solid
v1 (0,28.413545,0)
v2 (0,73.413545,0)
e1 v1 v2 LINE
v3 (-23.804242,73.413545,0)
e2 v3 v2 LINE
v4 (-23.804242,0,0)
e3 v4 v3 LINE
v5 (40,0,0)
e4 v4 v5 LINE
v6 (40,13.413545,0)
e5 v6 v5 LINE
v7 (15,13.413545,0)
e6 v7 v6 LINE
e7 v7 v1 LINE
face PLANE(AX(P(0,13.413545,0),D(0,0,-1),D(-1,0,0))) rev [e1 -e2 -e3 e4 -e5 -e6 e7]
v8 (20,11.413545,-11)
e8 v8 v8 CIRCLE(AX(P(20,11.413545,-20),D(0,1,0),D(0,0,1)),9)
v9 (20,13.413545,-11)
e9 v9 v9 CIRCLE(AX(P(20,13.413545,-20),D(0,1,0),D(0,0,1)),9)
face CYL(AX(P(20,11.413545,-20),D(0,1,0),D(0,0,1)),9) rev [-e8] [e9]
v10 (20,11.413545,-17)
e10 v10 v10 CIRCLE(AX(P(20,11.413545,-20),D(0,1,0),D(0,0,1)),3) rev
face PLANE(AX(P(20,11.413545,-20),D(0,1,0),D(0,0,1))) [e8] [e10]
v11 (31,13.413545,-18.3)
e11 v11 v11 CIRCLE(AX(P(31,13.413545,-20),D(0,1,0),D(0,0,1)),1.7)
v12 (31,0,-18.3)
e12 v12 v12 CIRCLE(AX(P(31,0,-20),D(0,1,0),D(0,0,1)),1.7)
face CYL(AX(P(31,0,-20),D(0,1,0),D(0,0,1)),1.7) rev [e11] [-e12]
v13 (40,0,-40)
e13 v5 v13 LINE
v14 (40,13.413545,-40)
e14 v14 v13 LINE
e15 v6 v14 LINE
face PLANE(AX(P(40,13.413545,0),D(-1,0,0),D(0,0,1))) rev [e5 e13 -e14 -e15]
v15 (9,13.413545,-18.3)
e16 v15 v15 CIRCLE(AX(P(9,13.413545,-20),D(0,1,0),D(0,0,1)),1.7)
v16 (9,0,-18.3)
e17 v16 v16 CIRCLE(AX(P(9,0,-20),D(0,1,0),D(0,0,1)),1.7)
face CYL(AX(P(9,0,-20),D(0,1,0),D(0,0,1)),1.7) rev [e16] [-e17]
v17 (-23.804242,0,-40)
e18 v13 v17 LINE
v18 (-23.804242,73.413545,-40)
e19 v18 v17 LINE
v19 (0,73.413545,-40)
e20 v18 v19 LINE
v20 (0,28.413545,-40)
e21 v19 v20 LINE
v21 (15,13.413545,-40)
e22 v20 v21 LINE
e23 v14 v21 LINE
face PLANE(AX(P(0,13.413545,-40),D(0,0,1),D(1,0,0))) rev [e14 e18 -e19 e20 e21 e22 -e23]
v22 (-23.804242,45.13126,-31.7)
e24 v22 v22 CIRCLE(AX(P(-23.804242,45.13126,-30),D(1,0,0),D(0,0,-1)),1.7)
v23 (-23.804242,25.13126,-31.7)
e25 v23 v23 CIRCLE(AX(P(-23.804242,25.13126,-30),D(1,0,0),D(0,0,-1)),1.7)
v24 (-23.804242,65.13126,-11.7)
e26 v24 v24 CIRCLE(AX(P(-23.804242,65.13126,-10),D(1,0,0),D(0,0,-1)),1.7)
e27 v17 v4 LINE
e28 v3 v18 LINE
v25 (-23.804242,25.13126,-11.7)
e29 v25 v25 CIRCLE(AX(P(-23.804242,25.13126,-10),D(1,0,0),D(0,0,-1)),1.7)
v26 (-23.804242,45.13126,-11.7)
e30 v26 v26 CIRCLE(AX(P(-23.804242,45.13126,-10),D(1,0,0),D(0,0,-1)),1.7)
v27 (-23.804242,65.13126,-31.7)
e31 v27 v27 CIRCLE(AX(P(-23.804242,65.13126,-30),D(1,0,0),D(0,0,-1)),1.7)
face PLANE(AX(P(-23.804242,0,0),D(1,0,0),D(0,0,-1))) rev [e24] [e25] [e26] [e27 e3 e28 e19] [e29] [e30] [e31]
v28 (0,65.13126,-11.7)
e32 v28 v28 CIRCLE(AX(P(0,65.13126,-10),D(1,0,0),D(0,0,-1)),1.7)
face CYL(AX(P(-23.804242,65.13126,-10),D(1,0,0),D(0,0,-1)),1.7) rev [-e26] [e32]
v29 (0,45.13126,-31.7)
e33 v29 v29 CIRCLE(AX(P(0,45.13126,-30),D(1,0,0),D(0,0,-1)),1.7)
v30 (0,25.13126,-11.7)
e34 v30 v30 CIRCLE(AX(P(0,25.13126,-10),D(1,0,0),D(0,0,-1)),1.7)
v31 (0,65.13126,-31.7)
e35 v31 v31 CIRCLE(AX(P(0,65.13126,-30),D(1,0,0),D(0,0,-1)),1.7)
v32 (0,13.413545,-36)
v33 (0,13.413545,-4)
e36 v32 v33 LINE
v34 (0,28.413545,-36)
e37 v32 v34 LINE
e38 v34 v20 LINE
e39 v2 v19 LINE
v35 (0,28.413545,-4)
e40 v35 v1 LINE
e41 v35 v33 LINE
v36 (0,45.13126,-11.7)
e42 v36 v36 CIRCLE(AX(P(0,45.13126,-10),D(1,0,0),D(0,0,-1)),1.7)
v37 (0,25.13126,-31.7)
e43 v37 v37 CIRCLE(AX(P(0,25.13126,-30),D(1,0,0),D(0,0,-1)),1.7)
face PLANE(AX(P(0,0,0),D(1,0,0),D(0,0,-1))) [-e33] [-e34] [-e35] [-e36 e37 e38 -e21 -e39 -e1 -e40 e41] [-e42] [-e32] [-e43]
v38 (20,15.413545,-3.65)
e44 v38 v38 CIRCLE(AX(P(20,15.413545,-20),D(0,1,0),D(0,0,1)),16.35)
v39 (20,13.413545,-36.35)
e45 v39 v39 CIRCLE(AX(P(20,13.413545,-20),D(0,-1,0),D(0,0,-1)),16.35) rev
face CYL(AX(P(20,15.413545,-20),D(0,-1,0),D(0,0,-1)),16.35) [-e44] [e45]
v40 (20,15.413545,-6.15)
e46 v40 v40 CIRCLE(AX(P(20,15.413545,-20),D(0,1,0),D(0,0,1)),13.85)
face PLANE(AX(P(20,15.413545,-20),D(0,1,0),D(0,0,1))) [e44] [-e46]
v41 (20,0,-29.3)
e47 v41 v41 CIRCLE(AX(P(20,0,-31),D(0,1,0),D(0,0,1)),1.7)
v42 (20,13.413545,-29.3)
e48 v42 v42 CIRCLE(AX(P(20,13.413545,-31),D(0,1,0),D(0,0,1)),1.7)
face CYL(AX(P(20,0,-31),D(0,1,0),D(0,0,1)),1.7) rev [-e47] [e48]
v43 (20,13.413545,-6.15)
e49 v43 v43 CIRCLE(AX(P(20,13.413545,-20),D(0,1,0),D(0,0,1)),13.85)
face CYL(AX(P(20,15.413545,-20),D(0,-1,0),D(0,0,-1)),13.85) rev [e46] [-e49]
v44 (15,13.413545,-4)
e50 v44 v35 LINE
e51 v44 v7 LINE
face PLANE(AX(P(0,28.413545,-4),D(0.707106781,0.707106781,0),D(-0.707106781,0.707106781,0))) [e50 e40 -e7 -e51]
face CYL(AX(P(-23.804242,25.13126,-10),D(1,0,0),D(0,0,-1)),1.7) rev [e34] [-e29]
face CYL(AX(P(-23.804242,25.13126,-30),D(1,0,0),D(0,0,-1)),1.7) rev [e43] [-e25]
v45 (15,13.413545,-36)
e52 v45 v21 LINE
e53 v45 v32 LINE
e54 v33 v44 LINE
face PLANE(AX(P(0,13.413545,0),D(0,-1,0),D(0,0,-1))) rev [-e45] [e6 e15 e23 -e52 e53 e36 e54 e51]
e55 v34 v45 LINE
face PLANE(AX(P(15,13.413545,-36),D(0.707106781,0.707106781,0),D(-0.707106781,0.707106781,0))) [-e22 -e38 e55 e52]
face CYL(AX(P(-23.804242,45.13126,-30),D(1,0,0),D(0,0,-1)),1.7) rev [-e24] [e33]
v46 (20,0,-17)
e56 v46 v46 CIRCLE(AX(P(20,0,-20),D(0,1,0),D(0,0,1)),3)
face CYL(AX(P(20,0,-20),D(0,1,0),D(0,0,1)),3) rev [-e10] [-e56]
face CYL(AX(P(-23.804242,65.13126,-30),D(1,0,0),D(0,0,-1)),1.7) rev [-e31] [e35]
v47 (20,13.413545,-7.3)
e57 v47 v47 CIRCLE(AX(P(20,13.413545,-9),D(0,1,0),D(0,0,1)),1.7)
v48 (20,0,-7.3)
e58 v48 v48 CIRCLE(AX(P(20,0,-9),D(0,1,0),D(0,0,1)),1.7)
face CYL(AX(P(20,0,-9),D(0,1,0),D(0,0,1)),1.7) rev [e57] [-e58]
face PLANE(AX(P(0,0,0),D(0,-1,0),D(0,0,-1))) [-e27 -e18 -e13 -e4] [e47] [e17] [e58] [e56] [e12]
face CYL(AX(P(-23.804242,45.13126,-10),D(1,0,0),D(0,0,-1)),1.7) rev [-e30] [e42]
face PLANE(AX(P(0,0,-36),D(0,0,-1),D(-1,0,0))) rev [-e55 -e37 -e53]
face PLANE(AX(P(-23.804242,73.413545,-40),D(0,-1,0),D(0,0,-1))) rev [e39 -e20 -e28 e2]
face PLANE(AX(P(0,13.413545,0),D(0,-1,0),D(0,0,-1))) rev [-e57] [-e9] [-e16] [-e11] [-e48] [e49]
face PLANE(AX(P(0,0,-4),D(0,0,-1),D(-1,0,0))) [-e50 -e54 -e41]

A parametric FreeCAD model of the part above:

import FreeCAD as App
import Part
import Sketcher
from FreeCAD import Vector
Q = App.Units.Quantity


def add_polygon(sketch, points):
    """Adds a closed chain of lines whose ends are joined by coincident constraints."""
    first, n = sketch.GeometryCount, len(points)
    for a, b in zip(points, points[1:] + points[:1]):
        sketch.addGeometry(Part.LineSegment(App.Vector(*a, 0), App.Vector(*b, 0)), False)
    for i in range(n):
        sketch.addConstraint(Sketcher.Constraint("Coincident", first + i, 2, first + (i + 1) % n, 1))

doc = App.newDocument("Part")
body = doc.addObject("PartDesign::Body", "Body")

# Sketch on XZ plane
sketch1 = body.newObject("Sketcher::SketchObject", "Sketch")
sketch1.AttachmentSupport = (doc.getObject("XZ_Plane"), [""])
sketch1.MapMode = "FlatFace"
add_polygon(sketch1, [(0, -40), (0, 0), (40, 0), (40, -40)])  # lines 0-3
sketch1.addConstraint([
    Sketcher.Constraint("Vertical", 0),
    Sketcher.Constraint("Horizontal", 1),
    Sketcher.Constraint("Vertical", 2),
    Sketcher.Constraint("Horizontal", 3),
    Sketcher.Constraint("Coincident", 0, 2, -1, 1),
    Sketcher.Constraint("Equal", 3, 0),
    Sketcher.Constraint("DistanceX", 1, 1, 1, 2, Q("40 mm")),
])
pad1 = body.newObject("PartDesign::Pad", "Pad")
pad1.Profile = sketch1
pad1.Length = 13.413545
pad1.Reversed = True

# Sketch on XZ plane
sketch2 = body.newObject("Sketcher::SketchObject", "Sketch001")
sketch2.AttachmentSupport = (doc.getObject("XZ_Plane"), [""])
sketch2.MapMode = "FlatFace"
sketch2.AttachmentOffset = App.Placement(Vector(0, 0, -13.413545), App.Rotation())
sketch2.addGeometry(Part.Circle(Vector(20, -20, 0), Vector(0, 0, 1), 3), False)
sketch2.addConstraint([
    Sketcher.Constraint("Diameter", 0, Q("6 mm")),
    Sketcher.Constraint("DistanceX", -1, 1, 0, 3, Q("20 mm")),
    Sketcher.Constraint("DistanceY", 0, 3, -1, 1, Q("20 mm")),
])
pocket1 = body.newObject("PartDesign::Pocket", "Pocket")
pocket1.Profile = sketch2
pocket1.Type = "ThroughAll"
pocket1.Reversed = True

# Sketch on YZ plane
sketch3 = body.newObject("Sketcher::SketchObject", "Sketch002")
sketch3.AttachmentSupport = (doc.getObject("YZ_Plane"), [""])
sketch3.MapMode = "FlatFace"
add_polygon(sketch3, [(73.413545, -40), (0, -40), (0, 0), (73.413545, 0)])  # lines 0-3
sketch3.addConstraint([
    Sketcher.Constraint("Horizontal", 0),
    Sketcher.Constraint("Vertical", 1),
    Sketcher.Constraint("Horizontal", 2),
    Sketcher.Constraint("Vertical", 3),
    Sketcher.Constraint("Coincident", 1, 2, -1, 1),
    Sketcher.Constraint("DistanceY", 1, 1, 1, 2, Q("40 mm")),
    Sketcher.Constraint("DistanceX", 0, 2, 0, 1, Q("73.413545 mm")),
])
pad2 = body.newObject("PartDesign::Pad", "Pad001")
pad2.Profile = sketch3
pad2.Length = 23.804242
pad2.Reversed = True

# Sketch on YZ plane
sketch4 = body.newObject("Sketcher::SketchObject", "Sketch003")
sketch4.AttachmentSupport = (doc.getObject("YZ_Plane"), [""])
sketch4.MapMode = "FlatFace"
sketch4.addGeometry([
    Part.Circle(Vector(65.13126, -10, 0), Vector(0, 0, 1), 1.7),  # 0
    Part.Circle(Vector(65.13126, -30, 0), Vector(0, 0, 1), 1.7),  # 1
    Part.Circle(Vector(45.13126, -10, 0), Vector(0, 0, 1), 1.7),  # 2
    Part.Circle(Vector(45.13126, -30, 0), Vector(0, 0, 1), 1.7),  # 3
    Part.Circle(Vector(25.13126, -10, 0), Vector(0, 0, 1), 1.7),  # 4
    Part.Circle(Vector(25.13126, -30, 0), Vector(0, 0, 1), 1.7),  # 5
], False)
sketch4.addConstraint([
    Sketcher.Constraint("Equal", 0, 1),
    Sketcher.Constraint("Equal", 1, 2),
    Sketcher.Constraint("Equal", 2, 3),
    Sketcher.Constraint("Equal", 3, 4),
    Sketcher.Constraint("Equal", 4, 5),
    Sketcher.Constraint("Horizontal", 0, 3, 2, 3),
    Sketcher.Constraint("Horizontal", 1, 3, 3, 3),
    Sketcher.Constraint("Horizontal", 2, 3, 4, 3),
    Sketcher.Constraint("Horizontal", 3, 3, 5, 3),
    Sketcher.Constraint("Vertical", 0, 3, 1, 3),
    Sketcher.Constraint("Vertical", 2, 3, 3, 3),
    Sketcher.Constraint("Vertical", 4, 3, 5, 3),
    Sketcher.Constraint("Diameter", 0, Q("3.4 mm")),
    Sketcher.Constraint("DistanceY", 0, 3, -1, 1, Q("10 mm")),
    Sketcher.Constraint("DistanceY", 1, 3, -1, 1, Q("30 mm")),
    Sketcher.Constraint("DistanceX", 2, 3, 0, 3, Q("20 mm")),
    Sketcher.Constraint("DistanceX", 4, 3, 2, 3, Q("20 mm")),
    Sketcher.Constraint("DistanceX", -1, 1, 0, 3, Q("65.13126 mm")),
])
pocket2 = body.newObject("PartDesign::Pocket", "Pocket001")
pocket2.Profile = sketch4
pocket2.Type = "ThroughAll"

# Sketch on XZ plane
sketch5 = body.newObject("Sketcher::SketchObject", "Sketch004")
sketch5.AttachmentSupport = (doc.getObject("XZ_Plane"), [""])
sketch5.MapMode = "FlatFace"
sketch5.AttachmentOffset = App.Placement(Vector(0, 0, -13.413545), App.Rotation())
sketch5.addGeometry([
    Part.Circle(Vector(20, -31, 0), Vector(0, 0, 1), 1.7),
    Part.Circle(Vector(31, -20, 0), Vector(0, 0, 1), 1.7),
    Part.Circle(Vector(20, -9, 0), Vector(0, 0, 1), 1.7),
    Part.Circle(Vector(9, -20, 0), Vector(0, 0, 1), 1.7),
], False)
sketch5.addConstraint([
    Sketcher.Constraint("Equal", 0, 1),
    Sketcher.Constraint("Equal", 1, 2),
    Sketcher.Constraint("Equal", 2, 3),
    Sketcher.Constraint("Horizontal", 1, 3, 3, 3),
    Sketcher.Constraint("Vertical", 0, 3, 2, 3),
    Sketcher.Constraint("Diameter", 0, Q("3.4 mm")),
    Sketcher.Constraint("DistanceX", -1, 1, 0, 3, Q("20 mm")),
    Sketcher.Constraint("DistanceY", 0, 3, -1, 1, Q("31 mm")),
    Sketcher.Constraint("DistanceX", -1, 1, 1, 3, Q("31 mm")),
    Sketcher.Constraint("DistanceY", 1, 3, -1, 1, Q("20 mm")),
    Sketcher.Constraint("DistanceY", 2, 3, -1, 1, Q("9 mm")),
    Sketcher.Constraint("DistanceX", -1, 1, 3, 3, Q("9 mm")),
])
pocket3 = body.newObject("PartDesign::Pocket", "Pocket002")
pocket3.Profile = sketch5
pocket3.Type = "ThroughAll"
pocket3.Reversed = True

# Sketch on XZ plane
sketch6 = body.newObject("Sketcher::SketchObject", "Sketch005")
sketch6.AttachmentSupport = (doc.getObject("XZ_Plane"), [""])
sketch6.MapMode = "FlatFace"
sketch6.AttachmentOffset = App.Placement(Vector(0, 0, -13.413545), App.Rotation())
sketch6.addGeometry([
    Part.Circle(Vector(20, -20, 0), Vector(0, 0, 1), 16.35),
    Part.Circle(Vector(20, -20, 0), Vector(0, 0, 1), 13.85),
], False)
sketch6.addConstraint([
    Sketcher.Constraint("Coincident", 1, 3, 0, 3),
    Sketcher.Constraint("Diameter", 0, Q("32.7 mm")),
    Sketcher.Constraint("Diameter", 1, Q("27.7 mm")),
    Sketcher.Constraint("DistanceX", -1, 1, 0, 3, Q("20 mm")),
    Sketcher.Constraint("DistanceY", 0, 3, -1, 1, Q("20 mm")),
])
pad3 = body.newObject("PartDesign::Pad", "Pad002")
pad3.Profile = sketch6
pad3.Length = 2
pad3.Reversed = True

# Sketch on XY plane
sketch7 = body.newObject("Sketcher::SketchObject", "Sketch006")
sketch7.AttachmentSupport = (doc.getObject("XY_Plane"), [""])
sketch7.MapMode = "FlatFace"
sketch7.AttachmentOffset = App.Placement(Vector(0, 0, -40), App.Rotation())
add_polygon(sketch7, [(0, 28.413545), (15, 13.413545), (0, 13.413545)])  # lines 0-2
sketch7.addConstraint([
    Sketcher.Constraint("Horizontal", 1),
    Sketcher.Constraint("Vertical", 2),
    Sketcher.Constraint("PointOnObject", 1, 2, -2),
    Sketcher.Constraint("Equal", 1, 2),
    Sketcher.Constraint("DistanceX", 1, 2, 1, 1, Q("15 mm")),
    Sketcher.Constraint("DistanceY", -1, 1, 0, 2, Q("13.413545 mm")),
])
pad4 = body.newObject("PartDesign::Pad", "Pad003")
pad4.Profile = sketch7
pad4.Length = 4

# Sketch on XY plane
sketch8 = body.newObject("Sketcher::SketchObject", "Sketch007")
sketch8.AttachmentSupport = (doc.getObject("XY_Plane"), [""])
sketch8.MapMode = "FlatFace"
add_polygon(sketch8, [(0, 28.413545), (0, 13.413545), (15, 13.413545)])  # lines 0-2
sketch8.addConstraint([
    Sketcher.Constraint("Vertical", 0),
    Sketcher.Constraint("Horizontal", 1),
    Sketcher.Constraint("PointOnObject", 0, 2, -2),
    Sketcher.Constraint("Equal", 1, 0),
    Sketcher.Constraint("DistanceX", 1, 1, 1, 2, Q("15 mm")),
    Sketcher.Constraint("DistanceY", -1, 1, 0, 2, Q("13.413545 mm")),
])
pad5 = body.newObject("PartDesign::Pad", "Pad004")
pad5.Profile = sketch8
pad5.Length = 4
pad5.Reversed = True

# Sketch on XZ plane
sketch9 = body.newObject("Sketcher::SketchObject", "Sketch008")
sketch9.AttachmentSupport = (doc.getObject("XZ_Plane"), [""])
sketch9.MapMode = "FlatFace"
sketch9.AttachmentOffset = App.Placement(Vector(0, 0, -13.413545), App.Rotation())
sketch9.addGeometry(Part.Circle(Vector(20, -20, 0), Vector(0, 0, 1), 9), False)
sketch9.addConstraint([
    Sketcher.Constraint("Diameter", 0, Q("18 mm")),
    Sketcher.Constraint("DistanceX", -1, 1, 0, 3, Q("20 mm")),
    Sketcher.Constraint("DistanceY", 0, 3, -1, 1, Q("20 mm")),
])
pocket4 = body.newObject("PartDesign::Pocket", "Pocket003")
pocket4.Profile = sketch9
pocket4.Length = 2
pocket4.Reversed = True

doc.recompute()
